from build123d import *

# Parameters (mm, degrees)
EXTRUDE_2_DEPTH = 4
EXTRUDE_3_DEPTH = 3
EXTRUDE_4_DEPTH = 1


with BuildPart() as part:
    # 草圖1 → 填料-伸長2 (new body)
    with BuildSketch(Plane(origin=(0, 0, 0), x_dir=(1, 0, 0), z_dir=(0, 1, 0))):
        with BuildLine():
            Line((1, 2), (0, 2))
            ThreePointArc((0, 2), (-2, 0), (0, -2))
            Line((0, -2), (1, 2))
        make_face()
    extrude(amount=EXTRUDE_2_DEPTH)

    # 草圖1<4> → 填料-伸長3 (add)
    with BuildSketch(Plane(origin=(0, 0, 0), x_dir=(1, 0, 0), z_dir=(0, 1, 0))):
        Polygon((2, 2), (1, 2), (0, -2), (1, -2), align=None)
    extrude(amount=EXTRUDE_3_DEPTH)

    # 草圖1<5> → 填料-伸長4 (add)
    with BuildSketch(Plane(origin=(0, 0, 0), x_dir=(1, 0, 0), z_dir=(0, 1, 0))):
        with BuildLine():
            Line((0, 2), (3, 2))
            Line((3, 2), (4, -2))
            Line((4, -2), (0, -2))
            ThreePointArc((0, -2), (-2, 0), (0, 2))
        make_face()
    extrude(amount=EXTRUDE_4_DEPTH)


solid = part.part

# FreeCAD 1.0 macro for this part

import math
import FreeCAD as App
import Part
import Sketcher

V = App.Vector


def add_polygon(sketch, points):
    """Adds a closed chain of lines whose ends are joined by coincident constraints."""
    first, n = sketch.GeometryCount, len(points)
    for a, b in zip(points, points[1:] + points[:1]):
        sketch.addGeometry(Part.LineSegment(App.Vector(*a, 0), App.Vector(*b, 0)), False)
    for i in range(n):
        sketch.addConstraint(Sketcher.Constraint("Coincident", first + i, 2, first + (i + 1) % n, 1))

doc = App.newDocument("Part")
params = doc.addObject("Spreadsheet::Sheet", "Params")
for row, (alias, value) in enumerate([
    ("sketch1_radius", "2 mm"),
    ("sketch1_width", "1 mm"),
    ("pad1_length", "4 mm"),
    ("sketch2_width", "1 mm"),
    ("pad2_length", "3 mm"),
    ("sketch3_radius", "2 mm"),
    ("sketch3_width", "3 mm"),
    ("sketch3_width2", "4 mm"),
    ("pad3_length", "1 mm"),
], start=1):
    params.set(f"A{row}", alias)
    params.set(f"B{row}", "=" + value)
    params.setAlias(f"B{row}", alias)

body = doc.addObject("PartDesign::Body", "Body")

# Sketch on XZ plane
sketch1 = body.newObject("Sketcher::SketchObject", "Sketch")
sketch1.AttachmentSupport = (doc.getObject("XZ_Plane"), [""])
sketch1.MapMode = "FlatFace"
sketch1.addGeometry(Part.LineSegment(V(1, -2, 0), V(0, -2, 0)), False)
sketch1.addGeometry(Part.ArcOfCircle(Part.Circle(V(0, 0, 0), V(0, 0, 1), 2), math.radians(90), math.radians(270)), False)
sketch1.addGeometry(Part.LineSegment(V(0, 2, 0), V(1, -2, 0)), False)
sketch1.addConstraint(Sketcher.Constraint("Tangent", 0, 2, 1, 2))
sketch1.addConstraint(Sketcher.Constraint("Coincident", 1, 1, 2, 1))
sketch1.addConstraint(Sketcher.Constraint("Coincident", 2, 2, 0, 1))
sketch1.addConstraint(Sketcher.Constraint("Horizontal", 0))
sketch1.addConstraint(Sketcher.Constraint("Coincident", 1, 3, -1, 1))
sketch1.addConstraint(Sketcher.Constraint("PointOnObject", 1, 1, -2))
sketch1.addConstraint(Sketcher.Constraint("Radius", 1, 2.0))
sketch1.addConstraint(Sketcher.Constraint("DistanceX", 0, 2, 0, 1, 1.0))
sketch1.setExpression("Constraints[6]", "Params.sketch1_radius")
sketch1.setExpression("Constraints[7]", "Params.sketch1_width")
pad1 = body.newObject("PartDesign::Pad", "Pad")
pad1.Profile = sketch1
pad1.setExpression("Length", "Params.pad1_length")
pad1.Reversed = True

# Sketch on XZ plane
sketch2 = body.newObject("Sketcher::SketchObject", "Sketch001")
sketch2.AttachmentSupport = (doc.getObject("XZ_Plane"), [""])
sketch2.MapMode = "FlatFace"
add_polygon(sketch2, [(2, -2), (1, -2), (0, 2), (1, 2)])  # lines 0-3
sketch2.addConstraint(Sketcher.Constraint("Horizontal", 0))
sketch2.addConstraint(Sketcher.Constraint("Horizontal", 2))
sketch2.addConstraint(Sketcher.Constraint("Symmetric", 0, 2, 2, 2, -1))
sketch2.addConstraint(Sketcher.Constraint("PointOnObject", 1, 2, -2))
sketch2.addConstraint(Sketcher.Constraint("Parallel", 1, 3))
sketch2.addConstraint(Sketcher.Constraint("DistanceX", 0, 2, 0, 1, 1.0))
sketch2.addConstraint(Sketcher.Constraint("DistanceY", 0, 2, -1, 1, 2.0))
sketch2.setExpression("Constraints[9]", "Params.sketch2_width")
pad2 = body.newObject("PartDesign::Pad", "Pad001")
pad2.Profile = sketch2
pad2.setExpression("Length", "Params.pad2_length")
pad2.Reversed = True

# Sketch on XZ plane
sketch3 = body.newObject("Sketcher::SketchObject", "Sketch002")
sketch3.AttachmentSupport = (doc.getObject("XZ_Plane"), [""])
sketch3.MapMode = "FlatFace"
sketch3.addGeometry(Part.LineSegment(V(3, -2, 0), V(0, -2, 0)), False)
sketch3.addGeometry(Part.ArcOfCircle(Part.Circle(V(0, 0, 0), V(0, 0, 1), 2), math.radians(90), math.radians(270)), False)
sketch3.addGeometry(Part.LineSegment(V(0, 2, 0), V(4, 2, 0)), False)
sketch3.addGeometry(Part.LineSegment(V(4, 2, 0), V(3, -2, 0)), False)
sketch3.addConstraint(Sketcher.Constraint("Tangent", 0, 2, 1, 2))
sketch3.addConstraint(Sketcher.Constraint("Tangent", 1, 1, 2, 1))
sketch3.addConstraint(Sketcher.Constraint("Coincident", 2, 2, 3, 1))
sketch3.addConstraint(Sketcher.Constraint("Coincident", 3, 2, 0, 1))
sketch3.addConstraint(Sketcher.Constraint("Horizontal", 0))
sketch3.addConstraint(Sketcher.Constraint("Horizontal", 2))
sketch3.addConstraint(Sketcher.Constraint("Coincident", 1, 3, -1, 1))
sketch3.addConstraint(Sketcher.Constraint("Radius", 1, 2.0))
sketch3.addConstraint(Sketcher.Constraint("DistanceX", 0, 2, 0, 1, 3.0))
sketch3.addConstraint(Sketcher.Constraint("DistanceX", 2, 1, 2, 2, 4.0))
sketch3.setExpression("Constraints[7]", "Params.sketch3_radius")
sketch3.setExpression("Constraints[8]", "Params.sketch3_width")
sketch3.setExpression("Constraints[9]", "Params.sketch3_width2")
pad3 = body.newObject("PartDesign::Pad", "Pad002")
pad3.Profile = sketch3
pad3.setExpression("Length", "Params.pad3_length")
pad3.Reversed = True

doc.recompute()
